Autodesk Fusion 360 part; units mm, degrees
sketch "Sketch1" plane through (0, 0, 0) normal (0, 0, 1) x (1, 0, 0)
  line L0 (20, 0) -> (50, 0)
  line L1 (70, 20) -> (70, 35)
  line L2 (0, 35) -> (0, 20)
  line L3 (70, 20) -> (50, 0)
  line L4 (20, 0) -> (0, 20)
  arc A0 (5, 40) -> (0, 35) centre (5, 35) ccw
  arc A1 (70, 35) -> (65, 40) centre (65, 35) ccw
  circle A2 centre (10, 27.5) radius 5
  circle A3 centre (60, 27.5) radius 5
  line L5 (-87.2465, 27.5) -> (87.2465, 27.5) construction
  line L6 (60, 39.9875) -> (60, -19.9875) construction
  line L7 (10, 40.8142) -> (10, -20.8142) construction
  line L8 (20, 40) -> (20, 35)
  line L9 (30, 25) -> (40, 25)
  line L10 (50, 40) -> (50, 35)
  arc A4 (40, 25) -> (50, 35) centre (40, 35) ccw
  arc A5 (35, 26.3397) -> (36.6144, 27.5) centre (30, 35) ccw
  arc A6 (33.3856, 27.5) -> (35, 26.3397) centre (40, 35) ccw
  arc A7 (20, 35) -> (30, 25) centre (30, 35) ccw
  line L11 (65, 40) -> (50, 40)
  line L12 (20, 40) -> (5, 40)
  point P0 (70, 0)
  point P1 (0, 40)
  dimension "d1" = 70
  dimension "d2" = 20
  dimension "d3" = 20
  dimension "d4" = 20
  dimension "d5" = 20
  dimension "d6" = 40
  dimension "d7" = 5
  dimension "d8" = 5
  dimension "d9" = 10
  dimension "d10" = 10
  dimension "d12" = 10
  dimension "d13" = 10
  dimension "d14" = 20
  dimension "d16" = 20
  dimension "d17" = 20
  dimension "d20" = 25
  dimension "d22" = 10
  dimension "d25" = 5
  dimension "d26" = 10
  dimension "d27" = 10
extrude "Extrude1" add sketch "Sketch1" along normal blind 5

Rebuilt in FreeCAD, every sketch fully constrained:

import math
import FreeCAD as App
import Part
import Sketcher
from FreeCAD import Vector

doc = App.newDocument("Part")
body = doc.addObject("PartDesign::Body", "Body")

sketch1 = doc.addObject("Sketcher::SketchObject", "Sketch")
body.addObject(sketch1)
sketch1.AttachmentSupport = (doc.XY_Plane, [""])
sketch1.MapMode = "FlatFace"
sketch1.addGeometry([
    Part.LineSegment(Vector(0, 20, 0), Vector(20, 0, 0)),
    Part.LineSegment(Vector(20, 0, 0), Vector(50, 0, 0)),
    Part.LineSegment(Vector(50, 0, 0), Vector(70, 20, 0)),
    Part.LineSegment(Vector(70, 20, 0), Vector(70, 35, 0)),
    Part.ArcOfCircle(Part.Circle(Vector(65, 35, 0), Vector(0, 0, 1), 5), math.radians(0), math.radians(90)),
    Part.LineSegment(Vector(65, 40, 0), Vector(50, 40, 0)),
    Part.LineSegment(Vector(50, 40, 0), Vector(50, 35, 0)),
    Part.ArcOfCircle(Part.Circle(Vector(40, 35, 0), Vector(0, 0, 1), 10), math.radians(-90), math.radians(0)),
    Part.LineSegment(Vector(40, 25, 0), Vector(30, 25, 0)),
    Part.ArcOfCircle(Part.Circle(Vector(30, 35, 0), Vector(0, 0, 1), 10), math.radians(180), math.radians(270)),
    Part.LineSegment(Vector(20, 35, 0), Vector(20, 40, 0)),
    Part.LineSegment(Vector(20, 40, 0), Vector(5, 40, 0)),
    Part.ArcOfCircle(Part.Circle(Vector(5, 35, 0), Vector(0, 0, 1), 5), math.radians(90), math.radians(180)),
    Part.LineSegment(Vector(0, 35, 0), Vector(0, 20, 0)),
    Part.Circle(Vector(10, 28, 0), Vector(0, 0, 1), 5),
    Part.Circle(Vector(60, 28, 0), Vector(0, 0, 1), 5),
], False)
sketch1.addConstraint([
    Sketcher.Constraint("Coincident", 0, 2, 1, 1),
    Sketcher.Constraint("Coincident", 1, 2, 2, 1),
    Sketcher.Constraint("Coincident", 2, 2, 3, 1),
    Sketcher.Constraint("Tangent", 3, 2, 4, 1),
    Sketcher.Constraint("Tangent", 4, 2, 5, 1),
    Sketcher.Constraint("Coincident", 5, 2, 6, 1),
    Sketcher.Constraint("Tangent", 6, 2, 7, 2),
    Sketcher.Constraint("Tangent", 7, 1, 8, 1),
    Sketcher.Constraint("Tangent", 8, 2, 9, 2),
    Sketcher.Constraint("Tangent", 9, 1, 10, 1),
    Sketcher.Constraint("Coincident", 10, 2, 11, 1),
    Sketcher.Constraint("Tangent", 11, 2, 12, 1),
    Sketcher.Constraint("Tangent", 12, 2, 13, 1),
    Sketcher.Constraint("Coincident", 13, 2, 0, 1),
    Sketcher.Constraint("Horizontal", 1),
    Sketcher.Constraint("Vertical", 3),
    Sketcher.Constraint("Horizontal", 5),
    Sketcher.Constraint("Vertical", 6),
    Sketcher.Constraint("Horizontal", 8),
    Sketcher.Constraint("Vertical", 10),
    Sketcher.Constraint("Horizontal", 11),
    Sketcher.Constraint("Vertical", 13),
    Sketcher.Constraint("Equal", 7, 9),
    Sketcher.Constraint("Equal", 4, 12),
    Sketcher.Constraint("Equal", 12, 14),
    Sketcher.Constraint("Equal", 14, 15),
    Sketcher.Constraint("PointOnObject", 0, 2, -1),
    Sketcher.Constraint("PointOnObject", 12, 2, -2),
    Sketcher.Constraint("Perpendicular", 0, 2),
    Sketcher.Constraint("Horizontal", 4, 3, 7, 3),
    Sketcher.Constraint("Horizontal", 9, 3, 12, 3),
    Sketcher.Constraint("Horizontal", 14, 3, 15, 3),
    Sketcher.Constraint("Horizontal", 2, 2, 13, 2),
    Sketcher.Constraint("Vertical", 1, 2, 5, 2),
    Sketcher.Constraint("Vertical", 0, 2, 9, 1),
    Sketcher.Constraint("Equal", 5, 11),
    Sketcher.Constraint("Equal", 11, 3),
    Sketcher.Constraint("Diameter", 14, 10.0),
    Sketcher.Constraint("Radius", 7, 10.0),
    Sketcher.Constraint("DistanceX", 8, 2, 8, 1, 10.0),
    Sketcher.Constraint("DistanceX", -1, 1, 7, 3, 40.0),
    Sketcher.Constraint("DistanceX", -1, 1, 14, 3, 10.0),
    Sketcher.Constraint("DistanceX", 15, 3, 4, 3, 5.0),
    Sketcher.Constraint("DistanceY", -1, 1, 14, 3, 27.5),
])
pad1 = doc.addObject("PartDesign::Pad", "Pad")
body.addObject(pad1)
pad1.Profile = sketch1
pad1.Length = 5

doc.recompute()
